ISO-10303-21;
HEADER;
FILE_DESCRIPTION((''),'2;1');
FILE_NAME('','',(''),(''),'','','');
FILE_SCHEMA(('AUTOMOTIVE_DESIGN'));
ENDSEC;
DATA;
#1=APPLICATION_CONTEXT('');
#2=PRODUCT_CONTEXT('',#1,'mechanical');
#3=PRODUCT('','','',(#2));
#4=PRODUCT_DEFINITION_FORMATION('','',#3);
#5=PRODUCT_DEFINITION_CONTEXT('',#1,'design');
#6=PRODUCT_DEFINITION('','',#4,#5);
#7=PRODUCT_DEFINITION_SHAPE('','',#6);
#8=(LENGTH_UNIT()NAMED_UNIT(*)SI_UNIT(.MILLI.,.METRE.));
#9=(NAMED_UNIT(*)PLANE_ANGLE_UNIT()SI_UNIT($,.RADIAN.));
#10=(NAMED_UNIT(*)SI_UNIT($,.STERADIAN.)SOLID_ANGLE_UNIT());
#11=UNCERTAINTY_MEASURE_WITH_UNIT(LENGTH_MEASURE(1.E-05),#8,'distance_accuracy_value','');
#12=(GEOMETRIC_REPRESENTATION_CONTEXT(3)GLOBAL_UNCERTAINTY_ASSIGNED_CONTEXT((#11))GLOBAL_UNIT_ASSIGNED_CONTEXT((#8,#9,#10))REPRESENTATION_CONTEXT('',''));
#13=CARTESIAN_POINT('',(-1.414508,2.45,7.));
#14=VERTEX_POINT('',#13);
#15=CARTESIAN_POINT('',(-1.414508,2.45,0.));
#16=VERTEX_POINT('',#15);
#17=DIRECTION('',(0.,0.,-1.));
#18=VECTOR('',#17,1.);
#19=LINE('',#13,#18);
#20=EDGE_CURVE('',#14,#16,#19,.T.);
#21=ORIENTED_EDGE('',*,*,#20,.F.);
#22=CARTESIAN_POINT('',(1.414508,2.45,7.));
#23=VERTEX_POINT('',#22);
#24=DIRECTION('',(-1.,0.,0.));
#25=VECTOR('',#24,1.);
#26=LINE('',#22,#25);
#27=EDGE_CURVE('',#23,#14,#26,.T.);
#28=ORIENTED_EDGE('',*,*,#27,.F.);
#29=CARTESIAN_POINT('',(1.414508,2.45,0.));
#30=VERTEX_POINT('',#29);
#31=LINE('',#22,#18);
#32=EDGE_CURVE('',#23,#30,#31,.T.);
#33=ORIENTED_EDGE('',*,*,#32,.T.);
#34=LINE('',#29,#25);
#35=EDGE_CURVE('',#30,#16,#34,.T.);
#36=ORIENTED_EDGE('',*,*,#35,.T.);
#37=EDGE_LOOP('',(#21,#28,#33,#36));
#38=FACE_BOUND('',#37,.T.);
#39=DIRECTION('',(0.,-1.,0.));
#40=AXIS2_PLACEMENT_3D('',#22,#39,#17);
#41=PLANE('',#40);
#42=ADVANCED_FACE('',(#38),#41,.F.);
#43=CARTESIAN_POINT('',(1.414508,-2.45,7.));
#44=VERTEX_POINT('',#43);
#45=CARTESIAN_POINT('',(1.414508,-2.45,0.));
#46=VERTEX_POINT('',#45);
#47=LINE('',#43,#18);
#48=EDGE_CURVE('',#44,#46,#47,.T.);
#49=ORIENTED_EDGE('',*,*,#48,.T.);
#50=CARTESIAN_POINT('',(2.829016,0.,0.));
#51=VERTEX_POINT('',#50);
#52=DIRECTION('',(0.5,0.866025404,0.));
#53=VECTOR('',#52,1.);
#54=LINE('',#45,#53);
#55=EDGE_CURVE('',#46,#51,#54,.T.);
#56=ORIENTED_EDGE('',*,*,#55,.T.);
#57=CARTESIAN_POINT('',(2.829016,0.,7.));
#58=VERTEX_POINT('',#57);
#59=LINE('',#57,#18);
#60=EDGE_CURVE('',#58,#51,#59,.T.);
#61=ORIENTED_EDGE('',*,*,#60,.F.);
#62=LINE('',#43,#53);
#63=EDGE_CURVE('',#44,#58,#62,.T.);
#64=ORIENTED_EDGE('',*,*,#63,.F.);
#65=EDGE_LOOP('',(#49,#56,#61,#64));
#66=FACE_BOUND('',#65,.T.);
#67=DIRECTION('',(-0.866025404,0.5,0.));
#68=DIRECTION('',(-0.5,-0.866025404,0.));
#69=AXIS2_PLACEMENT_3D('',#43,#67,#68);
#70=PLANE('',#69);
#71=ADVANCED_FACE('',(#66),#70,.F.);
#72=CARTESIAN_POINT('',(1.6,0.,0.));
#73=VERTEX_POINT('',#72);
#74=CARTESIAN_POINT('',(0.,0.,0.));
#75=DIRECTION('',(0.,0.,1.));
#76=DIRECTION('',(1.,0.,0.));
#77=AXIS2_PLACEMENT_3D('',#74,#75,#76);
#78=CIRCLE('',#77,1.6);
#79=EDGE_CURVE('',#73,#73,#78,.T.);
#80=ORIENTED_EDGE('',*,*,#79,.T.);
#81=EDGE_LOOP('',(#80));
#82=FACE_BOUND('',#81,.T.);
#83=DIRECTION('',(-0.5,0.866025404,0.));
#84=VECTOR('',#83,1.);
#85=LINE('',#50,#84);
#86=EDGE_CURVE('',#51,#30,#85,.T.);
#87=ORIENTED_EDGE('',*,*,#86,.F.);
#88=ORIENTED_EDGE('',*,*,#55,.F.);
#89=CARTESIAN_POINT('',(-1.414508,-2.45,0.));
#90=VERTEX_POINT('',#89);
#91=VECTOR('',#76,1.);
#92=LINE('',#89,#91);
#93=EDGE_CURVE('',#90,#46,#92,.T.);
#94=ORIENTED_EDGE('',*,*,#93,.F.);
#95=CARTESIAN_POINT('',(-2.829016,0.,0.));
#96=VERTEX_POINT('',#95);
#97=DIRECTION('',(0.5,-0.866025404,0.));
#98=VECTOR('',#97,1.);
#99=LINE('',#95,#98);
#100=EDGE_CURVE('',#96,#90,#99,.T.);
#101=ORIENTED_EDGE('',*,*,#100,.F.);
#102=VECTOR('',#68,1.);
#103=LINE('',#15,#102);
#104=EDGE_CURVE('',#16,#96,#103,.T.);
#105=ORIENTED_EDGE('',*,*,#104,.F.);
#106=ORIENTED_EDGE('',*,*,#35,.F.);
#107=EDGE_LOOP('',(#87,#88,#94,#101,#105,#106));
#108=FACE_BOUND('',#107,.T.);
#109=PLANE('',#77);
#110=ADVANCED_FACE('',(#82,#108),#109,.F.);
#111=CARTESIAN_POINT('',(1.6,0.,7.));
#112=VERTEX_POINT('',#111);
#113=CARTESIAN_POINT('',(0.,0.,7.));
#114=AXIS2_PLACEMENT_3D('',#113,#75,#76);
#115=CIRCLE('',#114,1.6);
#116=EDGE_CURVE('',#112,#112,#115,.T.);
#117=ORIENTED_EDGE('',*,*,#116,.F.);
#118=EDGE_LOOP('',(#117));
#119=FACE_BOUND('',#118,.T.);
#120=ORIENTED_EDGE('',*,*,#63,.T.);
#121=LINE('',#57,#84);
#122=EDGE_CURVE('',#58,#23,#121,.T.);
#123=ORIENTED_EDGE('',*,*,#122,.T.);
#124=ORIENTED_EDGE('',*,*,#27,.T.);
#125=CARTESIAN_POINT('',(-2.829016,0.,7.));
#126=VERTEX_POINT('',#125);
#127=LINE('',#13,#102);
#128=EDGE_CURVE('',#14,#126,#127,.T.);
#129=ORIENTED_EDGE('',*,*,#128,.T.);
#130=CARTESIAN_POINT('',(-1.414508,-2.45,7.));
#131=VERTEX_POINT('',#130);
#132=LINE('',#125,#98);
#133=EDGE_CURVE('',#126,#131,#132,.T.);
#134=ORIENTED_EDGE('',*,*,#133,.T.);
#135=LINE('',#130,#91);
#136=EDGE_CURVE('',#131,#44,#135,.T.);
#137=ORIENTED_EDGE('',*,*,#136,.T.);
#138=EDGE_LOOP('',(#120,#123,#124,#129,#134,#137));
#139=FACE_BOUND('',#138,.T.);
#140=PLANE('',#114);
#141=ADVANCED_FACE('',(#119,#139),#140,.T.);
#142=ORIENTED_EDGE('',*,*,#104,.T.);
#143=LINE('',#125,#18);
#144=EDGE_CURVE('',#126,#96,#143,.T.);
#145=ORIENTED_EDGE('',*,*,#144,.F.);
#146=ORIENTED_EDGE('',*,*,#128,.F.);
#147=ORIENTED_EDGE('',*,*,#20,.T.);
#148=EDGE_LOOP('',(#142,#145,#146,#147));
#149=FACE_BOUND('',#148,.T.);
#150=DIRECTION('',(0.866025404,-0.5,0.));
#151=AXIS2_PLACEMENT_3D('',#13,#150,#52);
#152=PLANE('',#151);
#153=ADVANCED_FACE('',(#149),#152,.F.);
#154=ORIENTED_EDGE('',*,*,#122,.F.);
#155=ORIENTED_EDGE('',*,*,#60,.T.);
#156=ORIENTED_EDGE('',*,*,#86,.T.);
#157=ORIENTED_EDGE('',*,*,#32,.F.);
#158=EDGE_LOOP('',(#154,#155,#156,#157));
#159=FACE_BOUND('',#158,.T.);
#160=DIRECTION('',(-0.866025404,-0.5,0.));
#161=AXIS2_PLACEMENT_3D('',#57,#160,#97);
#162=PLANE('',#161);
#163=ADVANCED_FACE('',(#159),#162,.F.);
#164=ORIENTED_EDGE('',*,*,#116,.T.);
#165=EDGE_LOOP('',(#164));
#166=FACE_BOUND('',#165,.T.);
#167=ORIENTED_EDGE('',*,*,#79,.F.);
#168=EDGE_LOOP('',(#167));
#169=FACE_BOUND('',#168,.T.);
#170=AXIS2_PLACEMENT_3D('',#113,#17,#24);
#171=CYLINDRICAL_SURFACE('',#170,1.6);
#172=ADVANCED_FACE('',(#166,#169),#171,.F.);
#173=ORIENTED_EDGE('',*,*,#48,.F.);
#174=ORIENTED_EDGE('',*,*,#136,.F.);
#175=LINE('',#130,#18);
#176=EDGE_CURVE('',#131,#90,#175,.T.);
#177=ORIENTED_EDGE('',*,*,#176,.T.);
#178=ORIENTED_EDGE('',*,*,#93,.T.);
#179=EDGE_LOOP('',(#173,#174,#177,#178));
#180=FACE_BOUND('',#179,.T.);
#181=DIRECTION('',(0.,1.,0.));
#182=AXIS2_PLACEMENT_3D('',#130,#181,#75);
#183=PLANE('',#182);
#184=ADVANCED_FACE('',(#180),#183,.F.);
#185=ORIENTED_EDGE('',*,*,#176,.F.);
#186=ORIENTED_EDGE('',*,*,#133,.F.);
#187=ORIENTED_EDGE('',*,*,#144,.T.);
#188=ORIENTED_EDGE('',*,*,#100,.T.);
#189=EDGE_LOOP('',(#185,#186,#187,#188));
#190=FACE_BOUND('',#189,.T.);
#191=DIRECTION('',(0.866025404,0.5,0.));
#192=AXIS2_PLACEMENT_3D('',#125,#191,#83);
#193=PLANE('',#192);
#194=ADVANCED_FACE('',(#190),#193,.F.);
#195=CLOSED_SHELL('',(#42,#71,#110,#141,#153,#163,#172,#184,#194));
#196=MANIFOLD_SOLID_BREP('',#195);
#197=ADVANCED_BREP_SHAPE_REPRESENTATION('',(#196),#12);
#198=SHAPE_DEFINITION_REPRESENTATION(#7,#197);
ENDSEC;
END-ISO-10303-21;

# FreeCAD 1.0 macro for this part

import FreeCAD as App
import Part
import Sketcher
from FreeCAD import Vector
Q = App.Units.Quantity


def add_polygon(sketch, points):
    """Adds a closed chain of lines whose ends are joined by coincident constraints."""
    first, n = sketch.GeometryCount, len(points)
    for a, b in zip(points, points[1:] + points[:1]):
        sketch.addGeometry(Part.LineSegment(App.Vector(*a, 0), App.Vector(*b, 0)), False)
    for i in range(n):
        sketch.addConstraint(Sketcher.Constraint("Coincident", first + i, 2, first + (i + 1) % n, 1))

doc = App.newDocument("Part")
body = doc.addObject("PartDesign::Body", "Body")

# Sketch on XY plane
sketch1 = doc.addObject("Sketcher::SketchObject", "Sketch")
body.addObject(sketch1)
sketch1.AttachmentSupport = (doc.XY_Plane, [""])
sketch1.MapMode = "FlatFace"
add_polygon(sketch1, [(2.829016, 0), (1.414508, 2.45), (-1.414508, 2.45), (-2.829016, 0), (-1.414508, -2.45), (1.414508, -2.45)])  # lines 0-5
sketch1.addGeometry(Part.Circle(Vector(0, 0, 0), Vector(0, 0, 1), 1.6), False)  # 6
sketch1.addConstraint(Sketcher.Constraint("Horizontal", 1))
sketch1.addConstraint(Sketcher.Constraint("Horizontal", 4))
sketch1.addConstraint(Sketcher.Constraint("Coincident", 6, 3, -1, 1))
sketch1.addConstraint(Sketcher.Constraint("Symmetric", 0, 2, 3, 2, -1, 1))
sketch1.addConstraint(Sketcher.Constraint("Symmetric", 2, 2, 5, 2, -1, 1))
sketch1.addConstraint(Sketcher.Constraint("PointOnObject", 2, 2, -1))
sketch1.addConstraint(Sketcher.Constraint("Parallel", 2, 5))
sketch1.addConstraint(Sketcher.Constraint("Vertical", 1, 2, 3, 2))
sketch1.addConstraint(Sketcher.Constraint("Diameter", 6, Q("3.2 mm")))
sketch1.addConstraint(Sketcher.Constraint("Angle", 0, Q("120 deg")))
sketch1.addConstraint(Sketcher.Constraint("DistanceY", 3, 2, 1, 2, Q("4.9 mm")))
sketch1.addConstraint(Sketcher.Constraint("DistanceX", 1, 2, 1, 1, Q("2.829016 mm")))
pad1 = doc.addObject("PartDesign::Pad", "Pad")
body.addObject(pad1)
pad1.Profile = sketch1
pad1.Length = 7

doc.recompute()
